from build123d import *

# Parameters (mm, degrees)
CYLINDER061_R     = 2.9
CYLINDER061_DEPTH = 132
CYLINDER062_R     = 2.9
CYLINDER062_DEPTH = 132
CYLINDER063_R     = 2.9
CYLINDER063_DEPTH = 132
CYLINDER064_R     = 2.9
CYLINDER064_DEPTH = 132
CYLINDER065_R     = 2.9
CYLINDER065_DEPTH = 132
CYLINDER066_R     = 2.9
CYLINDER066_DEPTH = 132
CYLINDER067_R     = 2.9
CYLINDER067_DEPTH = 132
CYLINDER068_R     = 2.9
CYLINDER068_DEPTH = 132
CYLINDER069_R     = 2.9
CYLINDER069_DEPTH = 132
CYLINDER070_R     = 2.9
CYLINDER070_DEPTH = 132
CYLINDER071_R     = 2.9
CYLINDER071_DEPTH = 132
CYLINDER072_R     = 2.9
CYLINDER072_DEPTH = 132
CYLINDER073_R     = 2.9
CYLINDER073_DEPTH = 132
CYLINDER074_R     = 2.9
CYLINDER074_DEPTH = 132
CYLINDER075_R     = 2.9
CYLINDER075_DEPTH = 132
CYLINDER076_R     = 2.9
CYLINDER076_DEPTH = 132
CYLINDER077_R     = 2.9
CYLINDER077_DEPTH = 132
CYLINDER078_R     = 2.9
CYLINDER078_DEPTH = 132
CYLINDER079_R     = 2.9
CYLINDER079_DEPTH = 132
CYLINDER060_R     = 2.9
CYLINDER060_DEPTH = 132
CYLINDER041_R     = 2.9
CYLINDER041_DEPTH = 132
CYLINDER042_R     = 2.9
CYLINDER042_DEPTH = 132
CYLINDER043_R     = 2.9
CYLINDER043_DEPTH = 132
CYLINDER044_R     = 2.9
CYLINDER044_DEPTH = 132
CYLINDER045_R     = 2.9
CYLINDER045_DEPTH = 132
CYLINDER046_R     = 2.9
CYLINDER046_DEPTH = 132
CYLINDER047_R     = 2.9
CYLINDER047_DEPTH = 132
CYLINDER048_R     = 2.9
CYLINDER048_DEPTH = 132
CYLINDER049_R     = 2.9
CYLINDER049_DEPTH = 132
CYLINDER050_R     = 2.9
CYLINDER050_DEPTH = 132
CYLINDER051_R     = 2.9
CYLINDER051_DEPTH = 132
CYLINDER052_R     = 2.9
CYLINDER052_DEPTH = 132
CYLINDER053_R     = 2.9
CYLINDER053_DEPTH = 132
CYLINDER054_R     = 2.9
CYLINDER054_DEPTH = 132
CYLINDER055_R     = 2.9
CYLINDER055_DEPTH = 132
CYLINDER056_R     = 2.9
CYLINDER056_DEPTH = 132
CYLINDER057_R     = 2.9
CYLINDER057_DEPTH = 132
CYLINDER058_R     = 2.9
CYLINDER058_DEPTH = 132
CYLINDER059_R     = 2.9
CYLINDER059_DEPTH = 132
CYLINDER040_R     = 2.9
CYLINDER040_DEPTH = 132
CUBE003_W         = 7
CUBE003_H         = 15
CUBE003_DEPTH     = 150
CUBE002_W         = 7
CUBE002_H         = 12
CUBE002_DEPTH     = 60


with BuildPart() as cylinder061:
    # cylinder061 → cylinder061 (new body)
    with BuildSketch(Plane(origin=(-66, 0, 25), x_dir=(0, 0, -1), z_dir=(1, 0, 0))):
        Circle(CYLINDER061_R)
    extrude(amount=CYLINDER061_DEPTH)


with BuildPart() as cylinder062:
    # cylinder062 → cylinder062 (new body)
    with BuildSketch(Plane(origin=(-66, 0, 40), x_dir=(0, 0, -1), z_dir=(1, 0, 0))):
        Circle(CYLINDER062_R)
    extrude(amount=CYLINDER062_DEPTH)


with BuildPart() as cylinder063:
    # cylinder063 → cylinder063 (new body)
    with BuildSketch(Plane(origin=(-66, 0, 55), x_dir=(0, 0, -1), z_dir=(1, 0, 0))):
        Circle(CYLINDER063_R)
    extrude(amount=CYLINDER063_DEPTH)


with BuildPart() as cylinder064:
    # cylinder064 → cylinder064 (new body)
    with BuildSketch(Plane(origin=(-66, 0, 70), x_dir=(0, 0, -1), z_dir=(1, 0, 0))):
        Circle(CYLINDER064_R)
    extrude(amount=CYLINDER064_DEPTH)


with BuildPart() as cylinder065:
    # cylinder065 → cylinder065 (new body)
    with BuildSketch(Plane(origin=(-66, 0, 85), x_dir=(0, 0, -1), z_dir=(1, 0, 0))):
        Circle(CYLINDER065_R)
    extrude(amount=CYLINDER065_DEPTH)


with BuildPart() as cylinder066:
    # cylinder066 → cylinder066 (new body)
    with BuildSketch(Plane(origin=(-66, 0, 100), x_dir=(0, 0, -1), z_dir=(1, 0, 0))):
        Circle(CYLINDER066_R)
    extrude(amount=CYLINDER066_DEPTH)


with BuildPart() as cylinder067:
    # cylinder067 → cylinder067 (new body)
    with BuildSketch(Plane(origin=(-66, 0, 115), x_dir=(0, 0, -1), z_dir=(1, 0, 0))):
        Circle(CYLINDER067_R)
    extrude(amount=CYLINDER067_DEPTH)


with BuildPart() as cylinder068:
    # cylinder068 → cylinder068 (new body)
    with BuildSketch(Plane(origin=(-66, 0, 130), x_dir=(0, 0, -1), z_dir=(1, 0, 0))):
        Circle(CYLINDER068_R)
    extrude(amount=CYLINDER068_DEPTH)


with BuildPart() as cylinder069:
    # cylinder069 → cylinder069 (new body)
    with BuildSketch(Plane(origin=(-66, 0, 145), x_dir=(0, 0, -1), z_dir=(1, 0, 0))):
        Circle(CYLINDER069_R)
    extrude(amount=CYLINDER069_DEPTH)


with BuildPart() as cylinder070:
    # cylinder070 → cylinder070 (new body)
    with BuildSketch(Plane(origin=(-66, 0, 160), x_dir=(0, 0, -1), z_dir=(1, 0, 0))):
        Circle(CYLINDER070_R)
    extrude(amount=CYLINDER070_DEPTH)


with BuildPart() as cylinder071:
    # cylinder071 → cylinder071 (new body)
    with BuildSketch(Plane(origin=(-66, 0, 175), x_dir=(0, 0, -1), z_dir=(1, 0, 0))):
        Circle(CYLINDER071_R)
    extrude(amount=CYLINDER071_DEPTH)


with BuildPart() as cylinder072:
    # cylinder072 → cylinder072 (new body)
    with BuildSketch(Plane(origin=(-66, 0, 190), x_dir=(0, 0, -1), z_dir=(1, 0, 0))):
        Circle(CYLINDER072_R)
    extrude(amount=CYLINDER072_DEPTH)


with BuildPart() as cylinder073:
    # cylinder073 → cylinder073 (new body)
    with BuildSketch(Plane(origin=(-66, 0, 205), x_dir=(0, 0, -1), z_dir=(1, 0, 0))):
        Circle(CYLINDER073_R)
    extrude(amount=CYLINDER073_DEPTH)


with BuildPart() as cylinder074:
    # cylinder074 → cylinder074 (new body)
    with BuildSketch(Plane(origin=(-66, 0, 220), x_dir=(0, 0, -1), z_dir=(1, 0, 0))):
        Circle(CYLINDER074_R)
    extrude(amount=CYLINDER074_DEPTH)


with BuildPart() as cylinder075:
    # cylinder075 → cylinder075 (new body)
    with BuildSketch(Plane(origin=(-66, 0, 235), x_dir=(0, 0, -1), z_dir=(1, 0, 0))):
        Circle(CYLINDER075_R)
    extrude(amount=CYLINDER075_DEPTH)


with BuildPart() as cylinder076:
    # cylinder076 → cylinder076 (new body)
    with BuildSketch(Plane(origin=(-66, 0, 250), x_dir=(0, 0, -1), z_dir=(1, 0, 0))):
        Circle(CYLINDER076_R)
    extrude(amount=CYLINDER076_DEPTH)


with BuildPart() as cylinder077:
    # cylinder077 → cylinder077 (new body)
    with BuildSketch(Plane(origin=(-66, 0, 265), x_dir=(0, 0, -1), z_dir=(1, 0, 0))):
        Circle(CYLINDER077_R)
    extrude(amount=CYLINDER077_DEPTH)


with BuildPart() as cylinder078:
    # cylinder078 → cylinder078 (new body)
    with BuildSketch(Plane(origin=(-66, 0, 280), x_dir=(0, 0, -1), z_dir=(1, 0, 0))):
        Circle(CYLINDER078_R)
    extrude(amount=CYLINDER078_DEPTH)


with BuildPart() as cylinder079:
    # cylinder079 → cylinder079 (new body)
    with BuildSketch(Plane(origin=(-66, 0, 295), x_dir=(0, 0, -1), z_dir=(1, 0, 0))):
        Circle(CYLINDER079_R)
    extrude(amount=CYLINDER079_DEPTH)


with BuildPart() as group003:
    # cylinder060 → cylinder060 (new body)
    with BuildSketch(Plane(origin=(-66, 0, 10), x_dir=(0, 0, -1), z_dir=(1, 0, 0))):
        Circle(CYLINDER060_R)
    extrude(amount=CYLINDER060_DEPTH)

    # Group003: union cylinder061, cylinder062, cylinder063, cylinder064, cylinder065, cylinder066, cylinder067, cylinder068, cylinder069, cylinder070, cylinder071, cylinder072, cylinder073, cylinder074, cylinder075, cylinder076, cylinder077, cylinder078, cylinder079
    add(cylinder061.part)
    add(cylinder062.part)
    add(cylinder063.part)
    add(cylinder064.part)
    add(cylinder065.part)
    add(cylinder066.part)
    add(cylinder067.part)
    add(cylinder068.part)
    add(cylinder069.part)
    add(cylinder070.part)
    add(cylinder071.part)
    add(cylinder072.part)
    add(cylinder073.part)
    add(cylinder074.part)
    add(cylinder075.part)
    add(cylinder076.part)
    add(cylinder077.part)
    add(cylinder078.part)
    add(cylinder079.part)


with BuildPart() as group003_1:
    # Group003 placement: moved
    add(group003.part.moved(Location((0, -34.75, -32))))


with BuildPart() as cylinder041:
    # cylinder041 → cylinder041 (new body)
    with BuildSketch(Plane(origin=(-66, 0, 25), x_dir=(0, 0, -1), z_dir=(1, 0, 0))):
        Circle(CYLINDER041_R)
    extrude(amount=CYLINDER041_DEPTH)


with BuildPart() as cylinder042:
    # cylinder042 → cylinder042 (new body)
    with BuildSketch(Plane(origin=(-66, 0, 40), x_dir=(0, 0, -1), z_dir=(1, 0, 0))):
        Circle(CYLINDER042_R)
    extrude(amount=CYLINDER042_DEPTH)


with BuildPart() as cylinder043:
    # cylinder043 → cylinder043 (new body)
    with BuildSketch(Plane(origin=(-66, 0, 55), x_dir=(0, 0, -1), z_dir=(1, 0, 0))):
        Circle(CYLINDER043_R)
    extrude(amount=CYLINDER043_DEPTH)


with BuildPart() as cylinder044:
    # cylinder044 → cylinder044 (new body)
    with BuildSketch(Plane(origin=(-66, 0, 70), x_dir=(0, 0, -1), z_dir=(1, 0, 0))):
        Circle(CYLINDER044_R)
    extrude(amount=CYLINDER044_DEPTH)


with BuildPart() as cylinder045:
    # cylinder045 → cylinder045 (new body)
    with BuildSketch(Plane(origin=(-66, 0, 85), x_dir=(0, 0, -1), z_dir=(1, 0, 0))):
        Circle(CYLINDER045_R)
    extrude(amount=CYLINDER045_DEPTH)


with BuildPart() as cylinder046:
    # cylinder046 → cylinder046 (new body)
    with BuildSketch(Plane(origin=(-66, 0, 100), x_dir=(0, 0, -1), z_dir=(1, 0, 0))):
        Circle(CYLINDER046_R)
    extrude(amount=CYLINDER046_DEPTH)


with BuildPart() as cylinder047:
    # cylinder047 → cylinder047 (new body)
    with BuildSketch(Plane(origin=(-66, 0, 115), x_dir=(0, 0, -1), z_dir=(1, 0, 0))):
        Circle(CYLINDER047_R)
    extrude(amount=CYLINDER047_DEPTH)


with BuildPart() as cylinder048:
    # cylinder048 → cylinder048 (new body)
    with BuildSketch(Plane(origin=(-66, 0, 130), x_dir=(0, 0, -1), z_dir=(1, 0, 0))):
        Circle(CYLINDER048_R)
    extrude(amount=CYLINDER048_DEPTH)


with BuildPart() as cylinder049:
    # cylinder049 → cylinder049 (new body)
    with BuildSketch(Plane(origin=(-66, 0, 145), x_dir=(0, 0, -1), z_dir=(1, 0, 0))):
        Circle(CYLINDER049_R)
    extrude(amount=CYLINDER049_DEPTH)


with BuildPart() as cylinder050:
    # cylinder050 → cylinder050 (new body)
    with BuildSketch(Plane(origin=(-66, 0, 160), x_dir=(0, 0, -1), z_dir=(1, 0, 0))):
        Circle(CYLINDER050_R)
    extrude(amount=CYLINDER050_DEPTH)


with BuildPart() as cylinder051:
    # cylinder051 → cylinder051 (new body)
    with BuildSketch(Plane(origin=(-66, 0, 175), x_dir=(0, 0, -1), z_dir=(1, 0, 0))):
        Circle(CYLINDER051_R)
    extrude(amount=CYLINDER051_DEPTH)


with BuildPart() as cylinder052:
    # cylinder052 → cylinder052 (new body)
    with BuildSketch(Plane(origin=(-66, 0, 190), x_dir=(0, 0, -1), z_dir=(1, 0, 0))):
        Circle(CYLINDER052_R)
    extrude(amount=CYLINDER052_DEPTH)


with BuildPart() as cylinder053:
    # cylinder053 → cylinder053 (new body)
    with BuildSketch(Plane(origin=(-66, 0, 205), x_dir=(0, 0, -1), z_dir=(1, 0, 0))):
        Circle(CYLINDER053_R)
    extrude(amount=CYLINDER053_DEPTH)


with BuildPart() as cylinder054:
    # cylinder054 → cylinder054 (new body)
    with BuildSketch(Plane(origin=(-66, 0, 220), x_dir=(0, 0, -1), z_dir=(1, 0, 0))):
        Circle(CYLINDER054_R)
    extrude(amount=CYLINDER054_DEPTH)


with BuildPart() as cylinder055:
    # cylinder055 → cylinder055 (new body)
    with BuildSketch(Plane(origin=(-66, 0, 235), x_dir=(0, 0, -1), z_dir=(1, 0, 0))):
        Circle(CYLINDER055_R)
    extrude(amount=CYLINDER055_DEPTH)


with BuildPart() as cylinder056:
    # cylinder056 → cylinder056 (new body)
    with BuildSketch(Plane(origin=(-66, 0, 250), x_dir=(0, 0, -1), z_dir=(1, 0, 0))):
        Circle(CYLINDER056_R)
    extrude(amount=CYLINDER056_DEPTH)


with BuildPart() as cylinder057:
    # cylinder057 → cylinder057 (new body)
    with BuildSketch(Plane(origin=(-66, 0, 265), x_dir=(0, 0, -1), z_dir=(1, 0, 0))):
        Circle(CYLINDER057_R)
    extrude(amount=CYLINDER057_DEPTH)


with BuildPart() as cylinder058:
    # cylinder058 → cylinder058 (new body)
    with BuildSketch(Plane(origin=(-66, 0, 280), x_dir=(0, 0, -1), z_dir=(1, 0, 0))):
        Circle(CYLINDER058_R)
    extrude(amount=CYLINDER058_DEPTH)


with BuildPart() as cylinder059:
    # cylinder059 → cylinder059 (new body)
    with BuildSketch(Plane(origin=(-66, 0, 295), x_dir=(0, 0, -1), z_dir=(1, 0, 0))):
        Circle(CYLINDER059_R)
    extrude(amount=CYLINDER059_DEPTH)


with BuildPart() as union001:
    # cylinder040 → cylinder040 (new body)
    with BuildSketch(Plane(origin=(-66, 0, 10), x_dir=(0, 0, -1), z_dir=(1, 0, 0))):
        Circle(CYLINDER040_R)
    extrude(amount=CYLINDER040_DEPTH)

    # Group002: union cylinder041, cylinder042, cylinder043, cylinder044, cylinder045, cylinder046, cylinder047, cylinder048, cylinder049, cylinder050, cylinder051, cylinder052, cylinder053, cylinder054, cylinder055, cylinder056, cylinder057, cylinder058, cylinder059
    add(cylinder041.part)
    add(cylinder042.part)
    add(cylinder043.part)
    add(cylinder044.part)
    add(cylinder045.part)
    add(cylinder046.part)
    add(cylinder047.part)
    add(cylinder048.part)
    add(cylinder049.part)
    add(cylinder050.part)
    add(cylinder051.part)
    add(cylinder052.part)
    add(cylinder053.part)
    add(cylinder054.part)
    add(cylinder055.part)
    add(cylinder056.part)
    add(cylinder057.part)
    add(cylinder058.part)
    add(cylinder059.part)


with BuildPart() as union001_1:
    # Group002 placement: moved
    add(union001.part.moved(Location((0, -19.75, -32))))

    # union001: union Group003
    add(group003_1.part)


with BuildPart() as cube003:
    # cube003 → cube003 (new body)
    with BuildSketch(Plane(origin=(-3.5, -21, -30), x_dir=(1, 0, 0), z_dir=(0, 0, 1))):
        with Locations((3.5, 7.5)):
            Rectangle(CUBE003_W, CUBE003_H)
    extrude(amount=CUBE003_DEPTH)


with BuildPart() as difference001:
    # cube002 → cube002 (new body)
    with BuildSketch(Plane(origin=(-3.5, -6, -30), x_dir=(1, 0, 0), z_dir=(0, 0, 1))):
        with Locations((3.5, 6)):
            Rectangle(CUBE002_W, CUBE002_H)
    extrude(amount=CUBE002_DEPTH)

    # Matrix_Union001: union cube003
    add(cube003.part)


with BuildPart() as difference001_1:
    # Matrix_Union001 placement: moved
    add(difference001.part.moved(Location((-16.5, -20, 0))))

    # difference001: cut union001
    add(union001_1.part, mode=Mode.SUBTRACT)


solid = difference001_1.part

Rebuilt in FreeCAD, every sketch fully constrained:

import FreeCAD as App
import Part
import Sketcher


def add_polygon(sketch, points):
    """Adds a closed chain of lines whose ends are joined by coincident constraints."""
    first, n = sketch.GeometryCount, len(points)
    for a, b in zip(points, points[1:] + points[:1]):
        sketch.addGeometry(Part.LineSegment(App.Vector(*a, 0), App.Vector(*b, 0)), False)
    for i in range(n):
        sketch.addConstraint(Sketcher.Constraint("Coincident", first + i, 2, first + (i + 1) % n, 1))

doc = App.newDocument("Part")
params = doc.addObject("Spreadsheet::Sheet", "Params")
for row, (alias, value) in enumerate([
    ("sketch1_diameter", "5.8 mm"),
    ("pad1_length", "132 mm"),
    ("sketch2_diameter", "5.8 mm"),
    ("pad2_length", "132 mm"),
    ("sketch3_diameter", "5.8 mm"),
    ("pad3_length", "132 mm"),
    ("sketch4_diameter", "5.8 mm"),
    ("pad4_length", "132 mm"),
    ("sketch5_diameter", "5.8 mm"),
    ("pad5_length", "132 mm"),
    ("sketch6_diameter", "5.8 mm"),
    ("pad6_length", "132 mm"),
    ("sketch7_diameter", "5.8 mm"),
    ("pad7_length", "132 mm"),
    ("sketch8_diameter", "5.8 mm"),
    ("pad8_length", "132 mm"),
    ("sketch9_diameter", "5.8 mm"),
    ("pad9_length", "132 mm"),
    ("sketch10_diameter", "5.8 mm"),
    ("pad10_length", "132 mm"),
    ("sketch11_diameter", "5.8 mm"),
    ("pad11_length", "132 mm"),
    ("sketch12_diameter", "5.8 mm"),
    ("pad12_length", "132 mm"),
    ("sketch13_diameter", "5.8 mm"),
    ("pad13_length", "132 mm"),
    ("sketch14_diameter", "5.8 mm"),
    ("pad14_length", "132 mm"),
    ("sketch15_diameter", "5.8 mm"),
    ("pad15_length", "132 mm"),
    ("sketch16_diameter", "5.8 mm"),
    ("pad16_length", "132 mm"),
    ("sketch17_diameter", "5.8 mm"),
    ("pad17_length", "132 mm"),
    ("sketch18_diameter", "5.8 mm"),
    ("pad18_length", "132 mm"),
    ("sketch19_diameter", "5.8 mm"),
    ("pad19_length", "132 mm"),
    ("sketch20_diameter", "5.8 mm"),
    ("pad20_length", "132 mm"),
    ("sketch21_diameter", "5.8 mm"),
    ("pad21_length", "132 mm"),
    ("sketch22_diameter", "5.8 mm"),
    ("pad22_length", "132 mm"),
    ("sketch23_diameter", "5.8 mm"),
    ("pad23_length", "132 mm"),
    ("sketch24_diameter", "5.8 mm"),
    ("pad24_length", "132 mm"),
    ("sketch25_diameter", "5.8 mm"),
    ("pad25_length", "132 mm"),
    ("sketch26_diameter", "5.8 mm"),
    ("pad26_length", "132 mm"),
    ("sketch27_diameter", "5.8 mm"),
    ("pad27_length", "132 mm"),
    ("sketch28_diameter", "5.8 mm"),
    ("pad28_length", "132 mm"),
    ("sketch29_diameter", "5.8 mm"),
    ("pad29_length", "132 mm"),
    ("sketch30_diameter", "5.8 mm"),
    ("pad30_length", "132 mm"),
    ("sketch31_diameter", "5.8 mm"),
    ("pad31_length", "132 mm"),
    ("sketch32_diameter", "5.8 mm"),
    ("pad32_length", "132 mm"),
    ("sketch33_diameter", "5.8 mm"),
    ("pad33_length", "132 mm"),
    ("sketch34_diameter", "5.8 mm"),
    ("pad34_length", "132 mm"),
    ("sketch35_diameter", "5.8 mm"),
    ("pad35_length", "132 mm"),
    ("sketch36_diameter", "5.8 mm"),
    ("pad36_length", "132 mm"),
    ("sketch37_diameter", "5.8 mm"),
    ("pad37_length", "132 mm"),
    ("sketch38_diameter", "5.8 mm"),
    ("pad38_length", "132 mm"),
    ("sketch39_diameter", "5.8 mm"),
    ("pad39_length", "132 mm"),
    ("sketch40_diameter", "5.8 mm"),
    ("pad40_length", "132 mm"),
    ("sketch41_width", "7 mm"),
    ("sketch41_height", "15 mm"),
    ("pad41_length", "150 mm"),
    ("sketch42_width", "7 mm"),
    ("sketch42_height", "12 mm"),
    ("pad42_length", "60 mm"),
], start=1):
    params.set(f"A{row}", alias)
    params.set(f"B{row}", "=" + value)
    params.setAlias(f"B{row}", alias)

body = doc.addObject("PartDesign::Body", "Body")

sketch1 = body.newObject("Sketcher::SketchObject", "Sketch")
sketch1.AttachmentSupport = (doc.getObject("YZ_Plane"), [""])
sketch1.MapMode = "FlatFace"
sketch1.AttachmentOffset = App.Placement(App.Vector(0, 0, -66), App.Rotation())
sketch1.addGeometry(Part.Circle(App.Vector(0, 25, 0), App.Vector(0, 0, 1), 2.9), False)
sketch1.addConstraint([
    Sketcher.Constraint("PointOnObject", 0, 3, -2),
    Sketcher.Constraint("Diameter", 0, 5.8),
    Sketcher.Constraint("DistanceY", -1, 1, 0, 3, 25.0),
])
sketch1.setExpression("Constraints[1]", "Params.sketch1_diameter")
pad1 = body.newObject("PartDesign::Pad", "Pad")
pad1.Profile = sketch1
pad1.setExpression("Length", "Params.pad1_length")
body2 = doc.addObject("PartDesign::Body", "Body001")

sketch2 = body2.newObject("Sketcher::SketchObject", "Sketch001")
sketch2.AttachmentSupport = (doc.getObject("YZ_Plane001"), [""])
sketch2.MapMode = "FlatFace"
sketch2.AttachmentOffset = App.Placement(App.Vector(0, 0, -66), App.Rotation())
sketch2.addGeometry(Part.Circle(App.Vector(0, 40, 0), App.Vector(0, 0, 1), 2.9), False)
sketch2.addConstraint([
    Sketcher.Constraint("PointOnObject", 0, 3, -2),
    Sketcher.Constraint("Diameter", 0, 5.8),
    Sketcher.Constraint("DistanceY", -1, 1, 0, 3, 40.0),
])
sketch2.setExpression("Constraints[1]", "Params.sketch2_diameter")
pad2 = body2.newObject("PartDesign::Pad", "Pad001")
pad2.Profile = sketch2
pad2.setExpression("Length", "Params.pad2_length")
body3 = doc.addObject("PartDesign::Body", "Body002")

sketch3 = body3.newObject("Sketcher::SketchObject", "Sketch002")
sketch3.AttachmentSupport = (doc.getObject("YZ_Plane002"), [""])
sketch3.MapMode = "FlatFace"
sketch3.AttachmentOffset = App.Placement(App.Vector(0, 0, -66), App.Rotation())
sketch3.addGeometry(Part.Circle(App.Vector(0, 55, 0), App.Vector(0, 0, 1), 2.9), False)
sketch3.addConstraint([
    Sketcher.Constraint("PointOnObject", 0, 3, -2),
    Sketcher.Constraint("Diameter", 0, 5.8),
    Sketcher.Constraint("DistanceY", -1, 1, 0, 3, 55.0),
])
sketch3.setExpression("Constraints[1]", "Params.sketch3_diameter")
pad3 = body3.newObject("PartDesign::Pad", "Pad002")
pad3.Profile = sketch3
pad3.setExpression("Length", "Params.pad3_length")
body4 = doc.addObject("PartDesign::Body", "Body003")

sketch4 = body4.newObject("Sketcher::SketchObject", "Sketch003")
sketch4.AttachmentSupport = (doc.getObject("YZ_Plane003"), [""])
sketch4.MapMode = "FlatFace"
sketch4.AttachmentOffset = App.Placement(App.Vector(0, 0, -66), App.Rotation())
sketch4.addGeometry(Part.Circle(App.Vector(0, 70, 0), App.Vector(0, 0, 1), 2.9), False)
sketch4.addConstraint([
    Sketcher.Constraint("PointOnObject", 0, 3, -2),
    Sketcher.Constraint("Diameter", 0, 5.8),
    Sketcher.Constraint("DistanceY", -1, 1, 0, 3, 70.0),
])
sketch4.setExpression("Constraints[1]", "Params.sketch4_diameter")
pad4 = body4.newObject("PartDesign::Pad", "Pad003")
pad4.Profile = sketch4
pad4.setExpression("Length", "Params.pad4_length")
body5 = doc.addObject("PartDesign::Body", "Body004")

sketch5 = body5.newObject("Sketcher::SketchObject", "Sketch004")
sketch5.AttachmentSupport = (doc.getObject("YZ_Plane004"), [""])
sketch5.MapMode = "FlatFace"
sketch5.AttachmentOffset = App.Placement(App.Vector(0, 0, -66), App.Rotation())
sketch5.addGeometry(Part.Circle(App.Vector(0, 85, 0), App.Vector(0, 0, 1), 2.9), False)
sketch5.addConstraint([
    Sketcher.Constraint("PointOnObject", 0, 3, -2),
    Sketcher.Constraint("Diameter", 0, 5.8),
    Sketcher.Constraint("DistanceY", -1, 1, 0, 3, 85.0),
])
sketch5.setExpression("Constraints[1]", "Params.sketch5_diameter")
pad5 = body5.newObject("PartDesign::Pad", "Pad004")
pad5.Profile = sketch5
pad5.setExpression("Length", "Params.pad5_length")
body6 = doc.addObject("PartDesign::Body", "Body005")

sketch6 = body6.newObject("Sketcher::SketchObject", "Sketch005")
sketch6.AttachmentSupport = (doc.getObject("YZ_Plane005"), [""])
sketch6.MapMode = "FlatFace"
sketch6.AttachmentOffset = App.Placement(App.Vector(0, 0, -66), App.Rotation())
sketch6.addGeometry(Part.Circle(App.Vector(0, 100, 0), App.Vector(0, 0, 1), 2.9), False)
sketch6.addConstraint([
    Sketcher.Constraint("PointOnObject", 0, 3, -2),
    Sketcher.Constraint("Diameter", 0, 5.8),
    Sketcher.Constraint("DistanceY", -1, 1, 0, 3, 100.0),
])
sketch6.setExpression("Constraints[1]", "Params.sketch6_diameter")
pad6 = body6.newObject("PartDesign::Pad", "Pad005")
pad6.Profile = sketch6
pad6.setExpression("Length", "Params.pad6_length")
body7 = doc.addObject("PartDesign::Body", "Body006")

sketch7 = body7.newObject("Sketcher::SketchObject", "Sketch006")
sketch7.AttachmentSupport = (doc.getObject("YZ_Plane006"), [""])
sketch7.MapMode = "FlatFace"
sketch7.AttachmentOffset = App.Placement(App.Vector(0, 0, -66), App.Rotation())
sketch7.addGeometry(Part.Circle(App.Vector(0, 115, 0), App.Vector(0, 0, 1), 2.9), False)
sketch7.addConstraint([
    Sketcher.Constraint("PointOnObject", 0, 3, -2),
    Sketcher.Constraint("Diameter", 0, 5.8),
    Sketcher.Constraint("DistanceY", -1, 1, 0, 3, 115.0),
])
sketch7.setExpression("Constraints[1]", "Params.sketch7_diameter")
pad7 = body7.newObject("PartDesign::Pad", "Pad006")
pad7.Profile = sketch7
pad7.setExpression("Length", "Params.pad7_length")
body8 = doc.addObject("PartDesign::Body", "Body007")

sketch8 = body8.newObject("Sketcher::SketchObject", "Sketch007")
sketch8.AttachmentSupport = (doc.getObject("YZ_Plane007"), [""])
sketch8.MapMode = "FlatFace"
sketch8.AttachmentOffset = App.Placement(App.Vector(0, 0, -66), App.Rotation())
sketch8.addGeometry(Part.Circle(App.Vector(0, 130, 0), App.Vector(0, 0, 1), 2.9), False)
sketch8.addConstraint([
    Sketcher.Constraint("PointOnObject", 0, 3, -2),
    Sketcher.Constraint("Diameter", 0, 5.8),
    Sketcher.Constraint("DistanceY", -1, 1, 0, 3, 130.0),
])
sketch8.setExpression("Constraints[1]", "Params.sketch8_diameter")
pad8 = body8.newObject("PartDesign::Pad", "Pad007")
pad8.Profile = sketch8
pad8.setExpression("Length", "Params.pad8_length")
body9 = doc.addObject("PartDesign::Body", "Body008")

sketch9 = body9.newObject("Sketcher::SketchObject", "Sketch008")
sketch9.AttachmentSupport = (doc.getObject("YZ_Plane008"), [""])
sketch9.MapMode = "FlatFace"
sketch9.AttachmentOffset = App.Placement(App.Vector(0, 0, -66), App.Rotation())
sketch9.addGeometry(Part.Circle(App.Vector(0, 145, 0), App.Vector(0, 0, 1), 2.9), False)
sketch9.addConstraint([
    Sketcher.Constraint("PointOnObject", 0, 3, -2),
    Sketcher.Constraint("Diameter", 0, 5.8),
    Sketcher.Constraint("DistanceY", -1, 1, 0, 3, 145.0),
])
sketch9.setExpression("Constraints[1]", "Params.sketch9_diameter")
pad9 = body9.newObject("PartDesign::Pad", "Pad008")
pad9.Profile = sketch9
pad9.setExpression("Length", "Params.pad9_length")
body10 = doc.addObject("PartDesign::Body", "Body009")

sketch10 = body10.newObject("Sketcher::SketchObject", "Sketch009")
sketch10.AttachmentSupport = (doc.getObject("YZ_Plane009"), [""])
sketch10.MapMode = "FlatFace"
sketch10.AttachmentOffset = App.Placement(App.Vector(0, 0, -66), App.Rotation())
sketch10.addGeometry(Part.Circle(App.Vector(0, 160, 0), App.Vector(0, 0, 1), 2.9), False)
sketch10.addConstraint([
    Sketcher.Constraint("PointOnObject", 0, 3, -2),
    Sketcher.Constraint("Diameter", 0, 5.8),
    Sketcher.Constraint("DistanceY", -1, 1, 0, 3, 160.0),
])
sketch10.setExpression("Constraints[1]", "Params.sketch10_diameter")
pad10 = body10.newObject("PartDesign::Pad", "Pad009")
pad10.Profile = sketch10
pad10.setExpression("Length", "Params.pad10_length")
body11 = doc.addObject("PartDesign::Body", "Body010")

sketch11 = body11.newObject("Sketcher::SketchObject", "Sketch010")
sketch11.AttachmentSupport = (doc.getObject("YZ_Plane010"), [""])
sketch11.MapMode = "FlatFace"
sketch11.AttachmentOffset = App.Placement(App.Vector(0, 0, -66), App.Rotation())
sketch11.addGeometry(Part.Circle(App.Vector(0, 175, 0), App.Vector(0, 0, 1), 2.9), False)
sketch11.addConstraint([
    Sketcher.Constraint("PointOnObject", 0, 3, -2),
    Sketcher.Constraint("Diameter", 0, 5.8),
    Sketcher.Constraint("DistanceY", -1, 1, 0, 3, 175.0),
])
sketch11.setExpression("Constraints[1]", "Params.sketch11_diameter")
pad11 = body11.newObject("PartDesign::Pad", "Pad010")
pad11.Profile = sketch11
pad11.setExpression("Length", "Params.pad11_length")
body12 = doc.addObject("PartDesign::Body", "Body011")

sketch12 = body12.newObject("Sketcher::SketchObject", "Sketch011")
sketch12.AttachmentSupport = (doc.getObject("YZ_Plane011"), [""])
sketch12.MapMode = "FlatFace"
sketch12.AttachmentOffset = App.Placement(App.Vector(0, 0, -66), App.Rotation())
sketch12.addGeometry(Part.Circle(App.Vector(0, 190, 0), App.Vector(0, 0, 1), 2.9), False)
sketch12.addConstraint([
    Sketcher.Constraint("PointOnObject", 0, 3, -2),
    Sketcher.Constraint("Diameter", 0, 5.8),
    Sketcher.Constraint("DistanceY", -1, 1, 0, 3, 190.0),
])
sketch12.setExpression("Constraints[1]", "Params.sketch12_diameter")
pad12 = body12.newObject("PartDesign::Pad", "Pad011")
pad12.Profile = sketch12
pad12.setExpression("Length", "Params.pad12_length")
body13 = doc.addObject("PartDesign::Body", "Body012")

sketch13 = body13.newObject("Sketcher::SketchObject", "Sketch012")
sketch13.AttachmentSupport = (doc.getObject("YZ_Plane012"), [""])
sketch13.MapMode = "FlatFace"
sketch13.AttachmentOffset = App.Placement(App.Vector(0, 0, -66), App.Rotation())
sketch13.addGeometry(Part.Circle(App.Vector(0, 205, 0), App.Vector(0, 0, 1), 2.9), False)
sketch13.addConstraint([
    Sketcher.Constraint("PointOnObject", 0, 3, -2),
    Sketcher.Constraint("Diameter", 0, 5.8),
    Sketcher.Constraint("DistanceY", -1, 1, 0, 3, 205.0),
])
sketch13.setExpression("Constraints[1]", "Params.sketch13_diameter")
pad13 = body13.newObject("PartDesign::Pad", "Pad012")
pad13.Profile = sketch13
pad13.setExpression("Length", "Params.pad13_length")
body14 = doc.addObject("PartDesign::Body", "Body013")

sketch14 = body14.newObject("Sketcher::SketchObject", "Sketch013")
sketch14.AttachmentSupport = (doc.getObject("YZ_Plane013"), [""])
sketch14.MapMode = "FlatFace"
sketch14.AttachmentOffset = App.Placement(App.Vector(0, 0, -66), App.Rotation())
sketch14.addGeometry(Part.Circle(App.Vector(0, 220, 0), App.Vector(0, 0, 1), 2.9), False)
sketch14.addConstraint([
    Sketcher.Constraint("PointOnObject", 0, 3, -2),
    Sketcher.Constraint("Diameter", 0, 5.8),
    Sketcher.Constraint("DistanceY", -1, 1, 0, 3, 220.0),
])
sketch14.setExpression("Constraints[1]", "Params.sketch14_diameter")
pad14 = body14.newObject("PartDesign::Pad", "Pad013")
pad14.Profile = sketch14
pad14.setExpression("Length", "Params.pad14_length")
body15 = doc.addObject("PartDesign::Body", "Body014")

sketch15 = body15.newObject("Sketcher::SketchObject", "Sketch014")
sketch15.AttachmentSupport = (doc.getObject("YZ_Plane014"), [""])
sketch15.MapMode = "FlatFace"
sketch15.AttachmentOffset = App.Placement(App.Vector(0, 0, -66), App.Rotation())
sketch15.addGeometry(Part.Circle(App.Vector(0, 235, 0), App.Vector(0, 0, 1), 2.9), False)
sketch15.addConstraint([
    Sketcher.Constraint("PointOnObject", 0, 3, -2),
    Sketcher.Constraint("Diameter", 0, 5.8),
    Sketcher.Constraint("DistanceY", -1, 1, 0, 3, 235.0),
])
sketch15.setExpression("Constraints[1]", "Params.sketch15_diameter")
pad15 = body15.newObject("PartDesign::Pad", "Pad014")
pad15.Profile = sketch15
pad15.setExpression("Length", "Params.pad15_length")
body16 = doc.addObject("PartDesign::Body", "Body015")

sketch16 = body16.newObject("Sketcher::SketchObject", "Sketch015")
sketch16.AttachmentSupport = (doc.getObject("YZ_Plane015"), [""])
sketch16.MapMode = "FlatFace"
sketch16.AttachmentOffset = App.Placement(App.Vector(0, 0, -66), App.Rotation())
sketch16.addGeometry(Part.Circle(App.Vector(0, 250, 0), App.Vector(0, 0, 1), 2.9), False)
sketch16.addConstraint([
    Sketcher.Constraint("PointOnObject", 0, 3, -2),
    Sketcher.Constraint("Diameter", 0, 5.8),
    Sketcher.Constraint("DistanceY", -1, 1, 0, 3, 250.0),
])
sketch16.setExpression("Constraints[1]", "Params.sketch16_diameter")
pad16 = body16.newObject("PartDesign::Pad", "Pad015")
pad16.Profile = sketch16
pad16.setExpression("Length", "Params.pad16_length")
body17 = doc.addObject("PartDesign::Body", "Body016")

sketch17 = body17.newObject("Sketcher::SketchObject", "Sketch016")
sketch17.AttachmentSupport = (doc.getObject("YZ_Plane016"), [""])
sketch17.MapMode = "FlatFace"
sketch17.AttachmentOffset = App.Placement(App.Vector(0, 0, -66), App.Rotation())
sketch17.addGeometry(Part.Circle(App.Vector(0, 265, 0), App.Vector(0, 0, 1), 2.9), False)
sketch17.addConstraint([
    Sketcher.Constraint("PointOnObject", 0, 3, -2),
    Sketcher.Constraint("Diameter", 0, 5.8),
    Sketcher.Constraint("DistanceY", -1, 1, 0, 3, 265.0),
])
sketch17.setExpression("Constraints[1]", "Params.sketch17_diameter")
pad17 = body17.newObject("PartDesign::Pad", "Pad016")
pad17.Profile = sketch17
pad17.setExpression("Length", "Params.pad17_length")
body18 = doc.addObject("PartDesign::Body", "Body017")

sketch18 = body18.newObject("Sketcher::SketchObject", "Sketch017")
sketch18.AttachmentSupport = (doc.getObject("YZ_Plane017"), [""])
sketch18.MapMode = "FlatFace"
sketch18.AttachmentOffset = App.Placement(App.Vector(0, 0, -66), App.Rotation())
sketch18.addGeometry(Part.Circle(App.Vector(0, 280, 0), App.Vector(0, 0, 1), 2.9), False)
sketch18.addConstraint([
    Sketcher.Constraint("PointOnObject", 0, 3, -2),
    Sketcher.Constraint("Diameter", 0, 5.8),
    Sketcher.Constraint("DistanceY", -1, 1, 0, 3, 280.0),
])
sketch18.setExpression("Constraints[1]", "Params.sketch18_diameter")
pad18 = body18.newObject("PartDesign::Pad", "Pad017")
pad18.Profile = sketch18
pad18.setExpression("Length", "Params.pad18_length")
body19 = doc.addObject("PartDesign::Body", "Body018")

sketch19 = body19.newObject("Sketcher::SketchObject", "Sketch018")
sketch19.AttachmentSupport = (doc.getObject("YZ_Plane018"), [""])
sketch19.MapMode = "FlatFace"
sketch19.AttachmentOffset = App.Placement(App.Vector(0, 0, -66), App.Rotation())
sketch19.addGeometry(Part.Circle(App.Vector(0, 295, 0), App.Vector(0, 0, 1), 2.9), False)
sketch19.addConstraint([
    Sketcher.Constraint("PointOnObject", 0, 3, -2),
    Sketcher.Constraint("Diameter", 0, 5.8),
    Sketcher.Constraint("DistanceY", -1, 1, 0, 3, 295.0),
])
sketch19.setExpression("Constraints[1]", "Params.sketch19_diameter")
pad19 = body19.newObject("PartDesign::Pad", "Pad018")
pad19.Profile = sketch19
pad19.setExpression("Length", "Params.pad19_length")
body20 = doc.addObject("PartDesign::Body", "Body019")
body20.AllowCompound = True

sketch20 = body20.newObject("Sketcher::SketchObject", "Sketch019")
sketch20.AttachmentSupport = (doc.getObject("YZ_Plane019"), [""])
sketch20.MapMode = "FlatFace"
sketch20.AttachmentOffset = App.Placement(App.Vector(0, 0, -66), App.Rotation())
sketch20.addGeometry(Part.Circle(App.Vector(0, 10, 0), App.Vector(0, 0, 1), 2.9), False)
sketch20.addConstraint([
    Sketcher.Constraint("PointOnObject", 0, 3, -2),
    Sketcher.Constraint("Diameter", 0, 5.8),
    Sketcher.Constraint("DistanceY", -1, 1, 0, 3, 10.0),
])
sketch20.setExpression("Constraints[1]", "Params.sketch20_diameter")
pad20 = body20.newObject("PartDesign::Pad", "Pad019")
pad20.Profile = sketch20
pad20.setExpression("Length", "Params.pad20_length")
doc.recompute()

boolean = body20.newObject("PartDesign::Boolean", "Boolean")
boolean.Type = "Fuse"
boolean.addObjects([body])
doc.recompute()

boolean2 = body20.newObject("PartDesign::Boolean", "Boolean001")
boolean2.Type = "Fuse"
boolean2.addObjects([body2])
doc.recompute()

boolean3 = body20.newObject("PartDesign::Boolean", "Boolean002")
boolean3.Type = "Fuse"
boolean3.addObjects([body3])
doc.recompute()

boolean4 = body20.newObject("PartDesign::Boolean", "Boolean003")
boolean4.Type = "Fuse"
boolean4.addObjects([body4])
doc.recompute()

boolean5 = body20.newObject("PartDesign::Boolean", "Boolean004")
boolean5.Type = "Fuse"
boolean5.addObjects([body5])
doc.recompute()

boolean6 = body20.newObject("PartDesign::Boolean", "Boolean005")
boolean6.Type = "Fuse"
boolean6.addObjects([body6])
doc.recompute()

boolean7 = body20.newObject("PartDesign::Boolean", "Boolean006")
boolean7.Type = "Fuse"
boolean7.addObjects([body7])
doc.recompute()

boolean8 = body20.newObject("PartDesign::Boolean", "Boolean007")
boolean8.Type = "Fuse"
boolean8.addObjects([body8])
doc.recompute()

boolean9 = body20.newObject("PartDesign::Boolean", "Boolean008")
boolean9.Type = "Fuse"
boolean9.addObjects([body9])
doc.recompute()

boolean10 = body20.newObject("PartDesign::Boolean", "Boolean009")
boolean10.Type = "Fuse"
boolean10.addObjects([body10])
doc.recompute()

boolean11 = body20.newObject("PartDesign::Boolean", "Boolean010")
boolean11.Type = "Fuse"
boolean11.addObjects([body11])
doc.recompute()

boolean12 = body20.newObject("PartDesign::Boolean", "Boolean011")
boolean12.Type = "Fuse"
boolean12.addObjects([body12])
doc.recompute()

boolean13 = body20.newObject("PartDesign::Boolean", "Boolean012")
boolean13.Type = "Fuse"
boolean13.addObjects([body13])
doc.recompute()

boolean14 = body20.newObject("PartDesign::Boolean", "Boolean013")
boolean14.Type = "Fuse"
boolean14.addObjects([body14])
doc.recompute()

boolean15 = body20.newObject("PartDesign::Boolean", "Boolean014")
boolean15.Type = "Fuse"
boolean15.addObjects([body15])
doc.recompute()

boolean16 = body20.newObject("PartDesign::Boolean", "Boolean015")
boolean16.Type = "Fuse"
boolean16.addObjects([body16])
doc.recompute()

boolean17 = body20.newObject("PartDesign::Boolean", "Boolean016")
boolean17.Type = "Fuse"
boolean17.addObjects([body17])
doc.recompute()

boolean18 = body20.newObject("PartDesign::Boolean", "Boolean017")
boolean18.Type = "Fuse"
boolean18.addObjects([body18])
doc.recompute()

boolean19 = body20.newObject("PartDesign::Boolean", "Boolean018")
boolean19.Type = "Fuse"
boolean19.addObjects([body19])
body21 = doc.addObject("PartDesign::Body", "Body020")
body21.AllowCompound = True
doc.recompute()

body20.Placement = App.Placement(App.Vector(0, -34.75, -32), App.Rotation(App.Vector(0, 0, 1), 0))
boolean20 = body21.newObject("PartDesign::Boolean", "Boolean019")
boolean20.Type = "Fuse"
boolean20.addObjects([body20])
body22 = doc.addObject("PartDesign::Body", "Body021")

sketch21 = body22.newObject("Sketcher::SketchObject", "Sketch020")
sketch21.AttachmentSupport = (doc.getObject("YZ_Plane021"), [""])
sketch21.MapMode = "FlatFace"
sketch21.AttachmentOffset = App.Placement(App.Vector(0, 0, -66), App.Rotation())
sketch21.addGeometry(Part.Circle(App.Vector(0, 25, 0), App.Vector(0, 0, 1), 2.9), False)
sketch21.addConstraint([
    Sketcher.Constraint("PointOnObject", 0, 3, -2),
    Sketcher.Constraint("Diameter", 0, 5.8),
    Sketcher.Constraint("DistanceY", -1, 1, 0, 3, 25.0),
])
sketch21.setExpression("Constraints[1]", "Params.sketch21_diameter")
pad21 = body22.newObject("PartDesign::Pad", "Pad020")
pad21.Profile = sketch21
pad21.setExpression("Length", "Params.pad21_length")
body23 = doc.addObject("PartDesign::Body", "Body022")

sketch22 = body23.newObject("Sketcher::SketchObject", "Sketch021")
sketch22.AttachmentSupport = (doc.getObject("YZ_Plane022"), [""])
sketch22.MapMode = "FlatFace"
sketch22.AttachmentOffset = App.Placement(App.Vector(0, 0, -66), App.Rotation())
sketch22.addGeometry(Part.Circle(App.Vector(0, 40, 0), App.Vector(0, 0, 1), 2.9), False)
sketch22.addConstraint([
    Sketcher.Constraint("PointOnObject", 0, 3, -2),
    Sketcher.Constraint("Diameter", 0, 5.8),
    Sketcher.Constraint("DistanceY", -1, 1, 0, 3, 40.0),
])
sketch22.setExpression("Constraints[1]", "Params.sketch22_diameter")
pad22 = body23.newObject("PartDesign::Pad", "Pad021")
pad22.Profile = sketch22
pad22.setExpression("Length", "Params.pad22_length")
body24 = doc.addObject("PartDesign::Body", "Body023")

sketch23 = body24.newObject("Sketcher::SketchObject", "Sketch022")
sketch23.AttachmentSupport = (doc.getObject("YZ_Plane023"), [""])
sketch23.MapMode = "FlatFace"
sketch23.AttachmentOffset = App.Placement(App.Vector(0, 0, -66), App.Rotation())
sketch23.addGeometry(Part.Circle(App.Vector(0, 55, 0), App.Vector(0, 0, 1), 2.9), False)
sketch23.addConstraint([
    Sketcher.Constraint("PointOnObject", 0, 3, -2),
    Sketcher.Constraint("Diameter", 0, 5.8),
    Sketcher.Constraint("DistanceY", -1, 1, 0, 3, 55.0),
])
sketch23.setExpression("Constraints[1]", "Params.sketch23_diameter")
pad23 = body24.newObject("PartDesign::Pad", "Pad022")
pad23.Profile = sketch23
pad23.setExpression("Length", "Params.pad23_length")
body25 = doc.addObject("PartDesign::Body", "Body024")

sketch24 = body25.newObject("Sketcher::SketchObject", "Sketch023")
sketch24.AttachmentSupport = (doc.getObject("YZ_Plane024"), [""])
sketch24.MapMode = "FlatFace"
sketch24.AttachmentOffset = App.Placement(App.Vector(0, 0, -66), App.Rotation())
sketch24.addGeometry(Part.Circle(App.Vector(0, 70, 0), App.Vector(0, 0, 1), 2.9), False)
sketch24.addConstraint([
    Sketcher.Constraint("PointOnObject", 0, 3, -2),
    Sketcher.Constraint("Diameter", 0, 5.8),
    Sketcher.Constraint("DistanceY", -1, 1, 0, 3, 70.0),
])
sketch24.setExpression("Constraints[1]", "Params.sketch24_diameter")
pad24 = body25.newObject("PartDesign::Pad", "Pad023")
pad24.Profile = sketch24
pad24.setExpression("Length", "Params.pad24_length")
body26 = doc.addObject("PartDesign::Body", "Body025")

sketch25 = body26.newObject("Sketcher::SketchObject", "Sketch024")
sketch25.AttachmentSupport = (doc.getObject("YZ_Plane025"), [""])
sketch25.MapMode = "FlatFace"
sketch25.AttachmentOffset = App.Placement(App.Vector(0, 0, -66), App.Rotation())
sketch25.addGeometry(Part.Circle(App.Vector(0, 85, 0), App.Vector(0, 0, 1), 2.9), False)
sketch25.addConstraint([
    Sketcher.Constraint("PointOnObject", 0, 3, -2),
    Sketcher.Constraint("Diameter", 0, 5.8),
    Sketcher.Constraint("DistanceY", -1, 1, 0, 3, 85.0),
])
sketch25.setExpression("Constraints[1]", "Params.sketch25_diameter")
pad25 = body26.newObject("PartDesign::Pad", "Pad024")
pad25.Profile = sketch25
pad25.setExpression("Length", "Params.pad25_length")
body27 = doc.addObject("PartDesign::Body", "Body026")

sketch26 = body27.newObject("Sketcher::SketchObject", "Sketch025")
sketch26.AttachmentSupport = (doc.getObject("YZ_Plane026"), [""])
sketch26.MapMode = "FlatFace"
sketch26.AttachmentOffset = App.Placement(App.Vector(0, 0, -66), App.Rotation())
sketch26.addGeometry(Part.Circle(App.Vector(0, 100, 0), App.Vector(0, 0, 1), 2.9), False)
sketch26.addConstraint([
    Sketcher.Constraint("PointOnObject", 0, 3, -2),
    Sketcher.Constraint("Diameter", 0, 5.8),
    Sketcher.Constraint("DistanceY", -1, 1, 0, 3, 100.0),
])
sketch26.setExpression("Constraints[1]", "Params.sketch26_diameter")
pad26 = body27.newObject("PartDesign::Pad", "Pad025")
pad26.Profile = sketch26
pad26.setExpression("Length", "Params.pad26_length")
body28 = doc.addObject("PartDesign::Body", "Body027")

sketch27 = body28.newObject("Sketcher::SketchObject", "Sketch026")
sketch27.AttachmentSupport = (doc.getObject("YZ_Plane027"), [""])
sketch27.MapMode = "FlatFace"
sketch27.AttachmentOffset = App.Placement(App.Vector(0, 0, -66), App.Rotation())
sketch27.addGeometry(Part.Circle(App.Vector(0, 115, 0), App.Vector(0, 0, 1), 2.9), False)
sketch27.addConstraint([
    Sketcher.Constraint("PointOnObject", 0, 3, -2),
    Sketcher.Constraint("Diameter", 0, 5.8),
    Sketcher.Constraint("DistanceY", -1, 1, 0, 3, 115.0),
])
sketch27.setExpression("Constraints[1]", "Params.sketch27_diameter")
pad27 = body28.newObject("PartDesign::Pad", "Pad026")
pad27.Profile = sketch27
pad27.setExpression("Length", "Params.pad27_length")
body29 = doc.addObject("PartDesign::Body", "Body028")

sketch28 = body29.newObject("Sketcher::SketchObject", "Sketch027")
sketch28.AttachmentSupport = (doc.getObject("YZ_Plane028"), [""])
sketch28.MapMode = "FlatFace"
sketch28.AttachmentOffset = App.Placement(App.Vector(0, 0, -66), App.Rotation())
sketch28.addGeometry(Part.Circle(App.Vector(0, 130, 0), App.Vector(0, 0, 1), 2.9), False)
sketch28.addConstraint([
    Sketcher.Constraint("PointOnObject", 0, 3, -2),
    Sketcher.Constraint("Diameter", 0, 5.8),
    Sketcher.Constraint("DistanceY", -1, 1, 0, 3, 130.0),
])
sketch28.setExpression("Constraints[1]", "Params.sketch28_diameter")
pad28 = body29.newObject("PartDesign::Pad", "Pad027")
pad28.Profile = sketch28
pad28.setExpression("Length", "Params.pad28_length")
body30 = doc.addObject("PartDesign::Body", "Body029")

sketch29 = body30.newObject("Sketcher::SketchObject", "Sketch028")
sketch29.AttachmentSupport = (doc.getObject("YZ_Plane029"), [""])
sketch29.MapMode = "FlatFace"
sketch29.AttachmentOffset = App.Placement(App.Vector(0, 0, -66), App.Rotation())
sketch29.addGeometry(Part.Circle(App.Vector(0, 145, 0), App.Vector(0, 0, 1), 2.9), False)
sketch29.addConstraint([
    Sketcher.Constraint("PointOnObject", 0, 3, -2),
    Sketcher.Constraint("Diameter", 0, 5.8),
    Sketcher.Constraint("DistanceY", -1, 1, 0, 3, 145.0),
])
sketch29.setExpression("Constraints[1]", "Params.sketch29_diameter")
pad29 = body30.newObject("PartDesign::Pad", "Pad028")
pad29.Profile = sketch29
pad29.setExpression("Length", "Params.pad29_length")
body31 = doc.addObject("PartDesign::Body", "Body030")

sketch30 = body31.newObject("Sketcher::SketchObject", "Sketch029")
sketch30.AttachmentSupport = (doc.getObject("YZ_Plane030"), [""])
sketch30.MapMode = "FlatFace"
sketch30.AttachmentOffset = App.Placement(App.Vector(0, 0, -66), App.Rotation())
sketch30.addGeometry(Part.Circle(App.Vector(0, 160, 0), App.Vector(0, 0, 1), 2.9), False)
sketch30.addConstraint([
    Sketcher.Constraint("PointOnObject", 0, 3, -2),
    Sketcher.Constraint("Diameter", 0, 5.8),
    Sketcher.Constraint("DistanceY", -1, 1, 0, 3, 160.0),
])
sketch30.setExpression("Constraints[1]", "Params.sketch30_diameter")
pad30 = body31.newObject("PartDesign::Pad", "Pad029")
pad30.Profile = sketch30
pad30.setExpression("Length", "Params.pad30_length")
body32 = doc.addObject("PartDesign::Body", "Body031")

sketch31 = body32.newObject("Sketcher::SketchObject", "Sketch030")
sketch31.AttachmentSupport = (doc.getObject("YZ_Plane031"), [""])
sketch31.MapMode = "FlatFace"
sketch31.AttachmentOffset = App.Placement(App.Vector(0, 0, -66), App.Rotation())
sketch31.addGeometry(Part.Circle(App.Vector(0, 175, 0), App.Vector(0, 0, 1), 2.9), False)
sketch31.addConstraint([
    Sketcher.Constraint("PointOnObject", 0, 3, -2),
    Sketcher.Constraint("Diameter", 0, 5.8),
    Sketcher.Constraint("DistanceY", -1, 1, 0, 3, 175.0),
])
sketch31.setExpression("Constraints[1]", "Params.sketch31_diameter")
pad31 = body32.newObject("PartDesign::Pad", "Pad030")
pad31.Profile = sketch31
pad31.setExpression("Length", "Params.pad31_length")
body33 = doc.addObject("PartDesign::Body", "Body032")

sketch32 = body33.newObject("Sketcher::SketchObject", "Sketch031")
sketch32.AttachmentSupport = (doc.getObject("YZ_Plane032"), [""])
sketch32.MapMode = "FlatFace"
sketch32.AttachmentOffset = App.Placement(App.Vector(0, 0, -66), App.Rotation())
sketch32.addGeometry(Part.Circle(App.Vector(0, 190, 0), App.Vector(0, 0, 1), 2.9), False)
sketch32.addConstraint([
    Sketcher.Constraint("PointOnObject", 0, 3, -2),
    Sketcher.Constraint("Diameter", 0, 5.8),
    Sketcher.Constraint("DistanceY", -1, 1, 0, 3, 190.0),
])
sketch32.setExpression("Constraints[1]", "Params.sketch32_diameter")
pad32 = body33.newObject("PartDesign::Pad", "Pad031")
pad32.Profile = sketch32
pad32.setExpression("Length", "Params.pad32_length")
body34 = doc.addObject("PartDesign::Body", "Body033")

sketch33 = body34.newObject("Sketcher::SketchObject", "Sketch032")
sketch33.AttachmentSupport = (doc.getObject("YZ_Plane033"), [""])
sketch33.MapMode = "FlatFace"
sketch33.AttachmentOffset = App.Placement(App.Vector(0, 0, -66), App.Rotation())
sketch33.addGeometry(Part.Circle(App.Vector(0, 205, 0), App.Vector(0, 0, 1), 2.9), False)
sketch33.addConstraint([
    Sketcher.Constraint("PointOnObject", 0, 3, -2),
    Sketcher.Constraint("Diameter", 0, 5.8),
    Sketcher.Constraint("DistanceY", -1, 1, 0, 3, 205.0),
])
sketch33.setExpression("Constraints[1]", "Params.sketch33_diameter")
pad33 = body34.newObject("PartDesign::Pad", "Pad032")
pad33.Profile = sketch33
pad33.setExpression("Length", "Params.pad33_length")
body35 = doc.addObject("PartDesign::Body", "Body034")

sketch34 = body35.newObject("Sketcher::SketchObject", "Sketch033")
sketch34.AttachmentSupport = (doc.getObject("YZ_Plane034"), [""])
sketch34.MapMode = "FlatFace"
sketch34.AttachmentOffset = App.Placement(App.Vector(0, 0, -66), App.Rotation())
sketch34.addGeometry(Part.Circle(App.Vector(0, 220, 0), App.Vector(0, 0, 1), 2.9), False)
sketch34.addConstraint([
    Sketcher.Constraint("PointOnObject", 0, 3, -2),
    Sketcher.Constraint("Diameter", 0, 5.8),
    Sketcher.Constraint("DistanceY", -1, 1, 0, 3, 220.0),
])
sketch34.setExpression("Constraints[1]", "Params.sketch34_diameter")
pad34 = body35.newObject("PartDesign::Pad", "Pad033")
pad34.Profile = sketch34
pad34.setExpression("Length", "Params.pad34_length")
body36 = doc.addObject("PartDesign::Body", "Body035")

sketch35 = body36.newObject("Sketcher::SketchObject", "Sketch034")
sketch35.AttachmentSupport = (doc.getObject("YZ_Plane035"), [""])
sketch35.MapMode = "FlatFace"
sketch35.AttachmentOffset = App.Placement(App.Vector(0, 0, -66), App.Rotation())
sketch35.addGeometry(Part.Circle(App.Vector(0, 235, 0), App.Vector(0, 0, 1), 2.9), False)
sketch35.addConstraint([
    Sketcher.Constraint("PointOnObject", 0, 3, -2),
    Sketcher.Constraint("Diameter", 0, 5.8),
    Sketcher.Constraint("DistanceY", -1, 1, 0, 3, 235.0),
])
sketch35.setExpression("Constraints[1]", "Params.sketch35_diameter")
pad35 = body36.newObject("PartDesign::Pad", "Pad034")
pad35.Profile = sketch35
pad35.setExpression("Length", "Params.pad35_length")
body37 = doc.addObject("PartDesign::Body", "Body036")

sketch36 = body37.newObject("Sketcher::SketchObject", "Sketch035")
sketch36.AttachmentSupport = (doc.getObject("YZ_Plane036"), [""])
sketch36.MapMode = "FlatFace"
sketch36.AttachmentOffset = App.Placement(App.Vector(0, 0, -66), App.Rotation())
sketch36.addGeometry(Part.Circle(App.Vector(0, 250, 0), App.Vector(0, 0, 1), 2.9), False)
sketch36.addConstraint([
    Sketcher.Constraint("PointOnObject", 0, 3, -2),
    Sketcher.Constraint("Diameter", 0, 5.8),
    Sketcher.Constraint("DistanceY", -1, 1, 0, 3, 250.0),
])
sketch36.setExpression("Constraints[1]", "Params.sketch36_diameter")
pad36 = body37.newObject("PartDesign::Pad", "Pad035")
pad36.Profile = sketch36
pad36.setExpression("Length", "Params.pad36_length")
body38 = doc.addObject("PartDesign::Body", "Body037")

sketch37 = body38.newObject("Sketcher::SketchObject", "Sketch036")
sketch37.AttachmentSupport = (doc.getObject("YZ_Plane037"), [""])
sketch37.MapMode = "FlatFace"
sketch37.AttachmentOffset = App.Placement(App.Vector(0, 0, -66), App.Rotation())
sketch37.addGeometry(Part.Circle(App.Vector(0, 265, 0), App.Vector(0, 0, 1), 2.9), False)
sketch37.addConstraint([
    Sketcher.Constraint("PointOnObject", 0, 3, -2),
    Sketcher.Constraint("Diameter", 0, 5.8),
    Sketcher.Constraint("DistanceY", -1, 1, 0, 3, 265.0),
])
sketch37.setExpression("Constraints[1]", "Params.sketch37_diameter")
pad37 = body38.newObject("PartDesign::Pad", "Pad036")
pad37.Profile = sketch37
pad37.setExpression("Length", "Params.pad37_length")
body39 = doc.addObject("PartDesign::Body", "Body038")

sketch38 = body39.newObject("Sketcher::SketchObject", "Sketch037")
sketch38.AttachmentSupport = (doc.getObject("YZ_Plane038"), [""])
sketch38.MapMode = "FlatFace"
sketch38.AttachmentOffset = App.Placement(App.Vector(0, 0, -66), App.Rotation())
sketch38.addGeometry(Part.Circle(App.Vector(0, 280, 0), App.Vector(0, 0, 1), 2.9), False)
sketch38.addConstraint([
    Sketcher.Constraint("PointOnObject", 0, 3, -2),
    Sketcher.Constraint("Diameter", 0, 5.8),
    Sketcher.Constraint("DistanceY", -1, 1, 0, 3, 280.0),
])
sketch38.setExpression("Constraints[1]", "Params.sketch38_diameter")
pad38 = body39.newObject("PartDesign::Pad", "Pad037")
pad38.Profile = sketch38
pad38.setExpression("Length", "Params.pad38_length")
body40 = doc.addObject("PartDesign::Body", "Body039")

sketch39 = body40.newObject("Sketcher::SketchObject", "Sketch038")
sketch39.AttachmentSupport = (doc.getObject("YZ_Plane039"), [""])
sketch39.MapMode = "FlatFace"
sketch39.AttachmentOffset = App.Placement(App.Vector(0, 0, -66), App.Rotation())
sketch39.addGeometry(Part.Circle(App.Vector(0, 295, 0), App.Vector(0, 0, 1), 2.9), False)
sketch39.addConstraint([
    Sketcher.Constraint("PointOnObject", 0, 3, -2),
    Sketcher.Constraint("Diameter", 0, 5.8),
    Sketcher.Constraint("DistanceY", -1, 1, 0, 3, 295.0),
])
sketch39.setExpression("Constraints[1]", "Params.sketch39_diameter")
pad39 = body40.newObject("PartDesign::Pad", "Pad038")
pad39.Profile = sketch39
pad39.setExpression("Length", "Params.pad39_length")
body41 = doc.addObject("PartDesign::Body", "Body040")
body41.AllowCompound = True

sketch40 = body41.newObject("Sketcher::SketchObject", "Sketch039")
sketch40.AttachmentSupport = (doc.getObject("YZ_Plane040"), [""])
sketch40.MapMode = "FlatFace"
sketch40.AttachmentOffset = App.Placement(App.Vector(0, 0, -66), App.Rotation())
sketch40.addGeometry(Part.Circle(App.Vector(0, 10, 0), App.Vector(0, 0, 1), 2.9), False)
sketch40.addConstraint([
    Sketcher.Constraint("PointOnObject", 0, 3, -2),
    Sketcher.Constraint("Diameter", 0, 5.8),
    Sketcher.Constraint("DistanceY", -1, 1, 0, 3, 10.0),
])
sketch40.setExpression("Constraints[1]", "Params.sketch40_diameter")
pad40 = body41.newObject("PartDesign::Pad", "Pad039")
pad40.Profile = sketch40
pad40.setExpression("Length", "Params.pad40_length")
doc.recompute()

boolean21 = body41.newObject("PartDesign::Boolean", "Boolean020")
boolean21.Type = "Fuse"
boolean21.addObjects([body22])
doc.recompute()

boolean22 = body41.newObject("PartDesign::Boolean", "Boolean021")
boolean22.Type = "Fuse"
boolean22.addObjects([body23])
doc.recompute()

boolean23 = body41.newObject("PartDesign::Boolean", "Boolean022")
boolean23.Type = "Fuse"
boolean23.addObjects([body24])
doc.recompute()

boolean24 = body41.newObject("PartDesign::Boolean", "Boolean023")
boolean24.Type = "Fuse"
boolean24.addObjects([body25])
doc.recompute()

boolean25 = body41.newObject("PartDesign::Boolean", "Boolean024")
boolean25.Type = "Fuse"
boolean25.addObjects([body26])
doc.recompute()

boolean26 = body41.newObject("PartDesign::Boolean", "Boolean025")
boolean26.Type = "Fuse"
boolean26.addObjects([body27])
doc.recompute()

boolean27 = body41.newObject("PartDesign::Boolean", "Boolean026")
boolean27.Type = "Fuse"
boolean27.addObjects([body28])
doc.recompute()

boolean28 = body41.newObject("PartDesign::Boolean", "Boolean027")
boolean28.Type = "Fuse"
boolean28.addObjects([body29])
doc.recompute()

boolean29 = body41.newObject("PartDesign::Boolean", "Boolean028")
boolean29.Type = "Fuse"
boolean29.addObjects([body30])
doc.recompute()

boolean30 = body41.newObject("PartDesign::Boolean", "Boolean029")
boolean30.Type = "Fuse"
boolean30.addObjects([body31])
doc.recompute()

boolean31 = body41.newObject("PartDesign::Boolean", "Boolean030")
boolean31.Type = "Fuse"
boolean31.addObjects([body32])
doc.recompute()

boolean32 = body41.newObject("PartDesign::Boolean", "Boolean031")
boolean32.Type = "Fuse"
boolean32.addObjects([body33])
doc.recompute()

boolean33 = body41.newObject("PartDesign::Boolean", "Boolean032")
boolean33.Type = "Fuse"
boolean33.addObjects([body34])
doc.recompute()

boolean34 = body41.newObject("PartDesign::Boolean", "Boolean033")
boolean34.Type = "Fuse"
boolean34.addObjects([body35])
doc.recompute()

boolean35 = body41.newObject("PartDesign::Boolean", "Boolean034")
boolean35.Type = "Fuse"
boolean35.addObjects([body36])
doc.recompute()

boolean36 = body41.newObject("PartDesign::Boolean", "Boolean035")
boolean36.Type = "Fuse"
boolean36.addObjects([body37])
doc.recompute()

boolean37 = body41.newObject("PartDesign::Boolean", "Boolean036")
boolean37.Type = "Fuse"
boolean37.addObjects([body38])
doc.recompute()

boolean38 = body41.newObject("PartDesign::Boolean", "Boolean037")
boolean38.Type = "Fuse"
boolean38.addObjects([body39])
doc.recompute()

boolean39 = body41.newObject("PartDesign::Boolean", "Boolean038")
boolean39.Type = "Fuse"
boolean39.addObjects([body40])
body42 = doc.addObject("PartDesign::Body", "Body041")
body42.AllowCompound = True
doc.recompute()

body41.Placement = App.Placement(App.Vector(0, -19.75, -32), App.Rotation(App.Vector(0, 0, 1), 0))
boolean40 = body42.newObject("PartDesign::Boolean", "Boolean039")
boolean40.Type = "Fuse"
boolean40.addObjects([body41])
doc.recompute()

boolean41 = body42.newObject("PartDesign::Boolean", "Boolean040")
boolean41.Type = "Fuse"
boolean41.addObjects([body21])
body43 = doc.addObject("PartDesign::Body", "Body042")

sketch41 = body43.newObject("Sketcher::SketchObject", "Sketch040")
sketch41.AttachmentSupport = (doc.getObject("XY_Plane042"), [""])
sketch41.MapMode = "FlatFace"
sketch41.AttachmentOffset = App.Placement(App.Vector(0, 0, -30), App.Rotation())
add_polygon(sketch41, [(-4, -6), (-4, -21), (4, -21), (4, -6)])
sketch41.addConstraint([
    Sketcher.Constraint("Vertical", 0),
    Sketcher.Constraint("Horizontal", 1),
    Sketcher.Constraint("Vertical", 2),
    Sketcher.Constraint("Horizontal", 3),
    Sketcher.Constraint("DistanceX", 1, 1, 1, 2, 7.0),
    Sketcher.Constraint("DistanceY", 0, 2, 0, 1, 15.0),
    Sketcher.Constraint("DistanceY", 0, 2, -1, 1, 21.0),
    Sketcher.Constraint("DistanceX", 0, 2, -1, 1, 3.5),
])
sketch41.setExpression("Constraints[8]", "Params.sketch41_width")
sketch41.setExpression("Constraints[9]", "Params.sketch41_height")
pad41 = body43.newObject("PartDesign::Pad", "Pad040")
pad41.Profile = sketch41
pad41.setExpression("Length", "Params.pad41_length")
body44 = doc.addObject("PartDesign::Body", "Body043")

sketch42 = body44.newObject("Sketcher::SketchObject", "Sketch041")
sketch42.AttachmentSupport = (doc.getObject("XY_Plane043"), [""])
sketch42.MapMode = "FlatFace"
sketch42.AttachmentOffset = App.Placement(App.Vector(0, 0, -30), App.Rotation())
add_polygon(sketch42, [(-4, 6), (-4, -6), (4, -6), (4, 6)])
sketch42.addConstraint([
    Sketcher.Constraint("Vertical", 0),
    Sketcher.Constraint("Horizontal", 1),
    Sketcher.Constraint("Vertical", 2),
    Sketcher.Constraint("Horizontal", 3),
    Sketcher.Constraint("Symmetric", 0, 2, 2, 2, -1, 1),
    Sketcher.Constraint("DistanceX", 1, 1, 1, 2, 7.0),
    Sketcher.Constraint("DistanceY", 0, 2, 0, 1, 12.0),
])
sketch42.setExpression("Constraints[9]", "Params.sketch42_width")
sketch42.setExpression("Constraints[10]", "Params.sketch42_height")
pad42 = body44.newObject("PartDesign::Pad", "Pad041")
pad42.Profile = sketch42
pad42.setExpression("Length", "Params.pad42_length")
doc.recompute()

boolean42 = body44.newObject("PartDesign::Boolean", "Boolean041")
boolean42.Type = "Fuse"
boolean42.addObjects([body43])
body45 = doc.addObject("PartDesign::Body", "Body044")
doc.recompute()

body44.Placement = App.Placement(App.Vector(-16.5, -20, 0), App.Rotation(App.Vector(0, 0, 1), 0))
boolean43 = body45.newObject("PartDesign::Boolean", "Boolean042")
boolean43.Type = "Fuse"
boolean43.addObjects([body44])
doc.recompute()

boolean44 = body45.newObject("PartDesign::Boolean", "Boolean043")
boolean44.Type = "Cut"
boolean44.addObjects([body42])

doc.recompute()
